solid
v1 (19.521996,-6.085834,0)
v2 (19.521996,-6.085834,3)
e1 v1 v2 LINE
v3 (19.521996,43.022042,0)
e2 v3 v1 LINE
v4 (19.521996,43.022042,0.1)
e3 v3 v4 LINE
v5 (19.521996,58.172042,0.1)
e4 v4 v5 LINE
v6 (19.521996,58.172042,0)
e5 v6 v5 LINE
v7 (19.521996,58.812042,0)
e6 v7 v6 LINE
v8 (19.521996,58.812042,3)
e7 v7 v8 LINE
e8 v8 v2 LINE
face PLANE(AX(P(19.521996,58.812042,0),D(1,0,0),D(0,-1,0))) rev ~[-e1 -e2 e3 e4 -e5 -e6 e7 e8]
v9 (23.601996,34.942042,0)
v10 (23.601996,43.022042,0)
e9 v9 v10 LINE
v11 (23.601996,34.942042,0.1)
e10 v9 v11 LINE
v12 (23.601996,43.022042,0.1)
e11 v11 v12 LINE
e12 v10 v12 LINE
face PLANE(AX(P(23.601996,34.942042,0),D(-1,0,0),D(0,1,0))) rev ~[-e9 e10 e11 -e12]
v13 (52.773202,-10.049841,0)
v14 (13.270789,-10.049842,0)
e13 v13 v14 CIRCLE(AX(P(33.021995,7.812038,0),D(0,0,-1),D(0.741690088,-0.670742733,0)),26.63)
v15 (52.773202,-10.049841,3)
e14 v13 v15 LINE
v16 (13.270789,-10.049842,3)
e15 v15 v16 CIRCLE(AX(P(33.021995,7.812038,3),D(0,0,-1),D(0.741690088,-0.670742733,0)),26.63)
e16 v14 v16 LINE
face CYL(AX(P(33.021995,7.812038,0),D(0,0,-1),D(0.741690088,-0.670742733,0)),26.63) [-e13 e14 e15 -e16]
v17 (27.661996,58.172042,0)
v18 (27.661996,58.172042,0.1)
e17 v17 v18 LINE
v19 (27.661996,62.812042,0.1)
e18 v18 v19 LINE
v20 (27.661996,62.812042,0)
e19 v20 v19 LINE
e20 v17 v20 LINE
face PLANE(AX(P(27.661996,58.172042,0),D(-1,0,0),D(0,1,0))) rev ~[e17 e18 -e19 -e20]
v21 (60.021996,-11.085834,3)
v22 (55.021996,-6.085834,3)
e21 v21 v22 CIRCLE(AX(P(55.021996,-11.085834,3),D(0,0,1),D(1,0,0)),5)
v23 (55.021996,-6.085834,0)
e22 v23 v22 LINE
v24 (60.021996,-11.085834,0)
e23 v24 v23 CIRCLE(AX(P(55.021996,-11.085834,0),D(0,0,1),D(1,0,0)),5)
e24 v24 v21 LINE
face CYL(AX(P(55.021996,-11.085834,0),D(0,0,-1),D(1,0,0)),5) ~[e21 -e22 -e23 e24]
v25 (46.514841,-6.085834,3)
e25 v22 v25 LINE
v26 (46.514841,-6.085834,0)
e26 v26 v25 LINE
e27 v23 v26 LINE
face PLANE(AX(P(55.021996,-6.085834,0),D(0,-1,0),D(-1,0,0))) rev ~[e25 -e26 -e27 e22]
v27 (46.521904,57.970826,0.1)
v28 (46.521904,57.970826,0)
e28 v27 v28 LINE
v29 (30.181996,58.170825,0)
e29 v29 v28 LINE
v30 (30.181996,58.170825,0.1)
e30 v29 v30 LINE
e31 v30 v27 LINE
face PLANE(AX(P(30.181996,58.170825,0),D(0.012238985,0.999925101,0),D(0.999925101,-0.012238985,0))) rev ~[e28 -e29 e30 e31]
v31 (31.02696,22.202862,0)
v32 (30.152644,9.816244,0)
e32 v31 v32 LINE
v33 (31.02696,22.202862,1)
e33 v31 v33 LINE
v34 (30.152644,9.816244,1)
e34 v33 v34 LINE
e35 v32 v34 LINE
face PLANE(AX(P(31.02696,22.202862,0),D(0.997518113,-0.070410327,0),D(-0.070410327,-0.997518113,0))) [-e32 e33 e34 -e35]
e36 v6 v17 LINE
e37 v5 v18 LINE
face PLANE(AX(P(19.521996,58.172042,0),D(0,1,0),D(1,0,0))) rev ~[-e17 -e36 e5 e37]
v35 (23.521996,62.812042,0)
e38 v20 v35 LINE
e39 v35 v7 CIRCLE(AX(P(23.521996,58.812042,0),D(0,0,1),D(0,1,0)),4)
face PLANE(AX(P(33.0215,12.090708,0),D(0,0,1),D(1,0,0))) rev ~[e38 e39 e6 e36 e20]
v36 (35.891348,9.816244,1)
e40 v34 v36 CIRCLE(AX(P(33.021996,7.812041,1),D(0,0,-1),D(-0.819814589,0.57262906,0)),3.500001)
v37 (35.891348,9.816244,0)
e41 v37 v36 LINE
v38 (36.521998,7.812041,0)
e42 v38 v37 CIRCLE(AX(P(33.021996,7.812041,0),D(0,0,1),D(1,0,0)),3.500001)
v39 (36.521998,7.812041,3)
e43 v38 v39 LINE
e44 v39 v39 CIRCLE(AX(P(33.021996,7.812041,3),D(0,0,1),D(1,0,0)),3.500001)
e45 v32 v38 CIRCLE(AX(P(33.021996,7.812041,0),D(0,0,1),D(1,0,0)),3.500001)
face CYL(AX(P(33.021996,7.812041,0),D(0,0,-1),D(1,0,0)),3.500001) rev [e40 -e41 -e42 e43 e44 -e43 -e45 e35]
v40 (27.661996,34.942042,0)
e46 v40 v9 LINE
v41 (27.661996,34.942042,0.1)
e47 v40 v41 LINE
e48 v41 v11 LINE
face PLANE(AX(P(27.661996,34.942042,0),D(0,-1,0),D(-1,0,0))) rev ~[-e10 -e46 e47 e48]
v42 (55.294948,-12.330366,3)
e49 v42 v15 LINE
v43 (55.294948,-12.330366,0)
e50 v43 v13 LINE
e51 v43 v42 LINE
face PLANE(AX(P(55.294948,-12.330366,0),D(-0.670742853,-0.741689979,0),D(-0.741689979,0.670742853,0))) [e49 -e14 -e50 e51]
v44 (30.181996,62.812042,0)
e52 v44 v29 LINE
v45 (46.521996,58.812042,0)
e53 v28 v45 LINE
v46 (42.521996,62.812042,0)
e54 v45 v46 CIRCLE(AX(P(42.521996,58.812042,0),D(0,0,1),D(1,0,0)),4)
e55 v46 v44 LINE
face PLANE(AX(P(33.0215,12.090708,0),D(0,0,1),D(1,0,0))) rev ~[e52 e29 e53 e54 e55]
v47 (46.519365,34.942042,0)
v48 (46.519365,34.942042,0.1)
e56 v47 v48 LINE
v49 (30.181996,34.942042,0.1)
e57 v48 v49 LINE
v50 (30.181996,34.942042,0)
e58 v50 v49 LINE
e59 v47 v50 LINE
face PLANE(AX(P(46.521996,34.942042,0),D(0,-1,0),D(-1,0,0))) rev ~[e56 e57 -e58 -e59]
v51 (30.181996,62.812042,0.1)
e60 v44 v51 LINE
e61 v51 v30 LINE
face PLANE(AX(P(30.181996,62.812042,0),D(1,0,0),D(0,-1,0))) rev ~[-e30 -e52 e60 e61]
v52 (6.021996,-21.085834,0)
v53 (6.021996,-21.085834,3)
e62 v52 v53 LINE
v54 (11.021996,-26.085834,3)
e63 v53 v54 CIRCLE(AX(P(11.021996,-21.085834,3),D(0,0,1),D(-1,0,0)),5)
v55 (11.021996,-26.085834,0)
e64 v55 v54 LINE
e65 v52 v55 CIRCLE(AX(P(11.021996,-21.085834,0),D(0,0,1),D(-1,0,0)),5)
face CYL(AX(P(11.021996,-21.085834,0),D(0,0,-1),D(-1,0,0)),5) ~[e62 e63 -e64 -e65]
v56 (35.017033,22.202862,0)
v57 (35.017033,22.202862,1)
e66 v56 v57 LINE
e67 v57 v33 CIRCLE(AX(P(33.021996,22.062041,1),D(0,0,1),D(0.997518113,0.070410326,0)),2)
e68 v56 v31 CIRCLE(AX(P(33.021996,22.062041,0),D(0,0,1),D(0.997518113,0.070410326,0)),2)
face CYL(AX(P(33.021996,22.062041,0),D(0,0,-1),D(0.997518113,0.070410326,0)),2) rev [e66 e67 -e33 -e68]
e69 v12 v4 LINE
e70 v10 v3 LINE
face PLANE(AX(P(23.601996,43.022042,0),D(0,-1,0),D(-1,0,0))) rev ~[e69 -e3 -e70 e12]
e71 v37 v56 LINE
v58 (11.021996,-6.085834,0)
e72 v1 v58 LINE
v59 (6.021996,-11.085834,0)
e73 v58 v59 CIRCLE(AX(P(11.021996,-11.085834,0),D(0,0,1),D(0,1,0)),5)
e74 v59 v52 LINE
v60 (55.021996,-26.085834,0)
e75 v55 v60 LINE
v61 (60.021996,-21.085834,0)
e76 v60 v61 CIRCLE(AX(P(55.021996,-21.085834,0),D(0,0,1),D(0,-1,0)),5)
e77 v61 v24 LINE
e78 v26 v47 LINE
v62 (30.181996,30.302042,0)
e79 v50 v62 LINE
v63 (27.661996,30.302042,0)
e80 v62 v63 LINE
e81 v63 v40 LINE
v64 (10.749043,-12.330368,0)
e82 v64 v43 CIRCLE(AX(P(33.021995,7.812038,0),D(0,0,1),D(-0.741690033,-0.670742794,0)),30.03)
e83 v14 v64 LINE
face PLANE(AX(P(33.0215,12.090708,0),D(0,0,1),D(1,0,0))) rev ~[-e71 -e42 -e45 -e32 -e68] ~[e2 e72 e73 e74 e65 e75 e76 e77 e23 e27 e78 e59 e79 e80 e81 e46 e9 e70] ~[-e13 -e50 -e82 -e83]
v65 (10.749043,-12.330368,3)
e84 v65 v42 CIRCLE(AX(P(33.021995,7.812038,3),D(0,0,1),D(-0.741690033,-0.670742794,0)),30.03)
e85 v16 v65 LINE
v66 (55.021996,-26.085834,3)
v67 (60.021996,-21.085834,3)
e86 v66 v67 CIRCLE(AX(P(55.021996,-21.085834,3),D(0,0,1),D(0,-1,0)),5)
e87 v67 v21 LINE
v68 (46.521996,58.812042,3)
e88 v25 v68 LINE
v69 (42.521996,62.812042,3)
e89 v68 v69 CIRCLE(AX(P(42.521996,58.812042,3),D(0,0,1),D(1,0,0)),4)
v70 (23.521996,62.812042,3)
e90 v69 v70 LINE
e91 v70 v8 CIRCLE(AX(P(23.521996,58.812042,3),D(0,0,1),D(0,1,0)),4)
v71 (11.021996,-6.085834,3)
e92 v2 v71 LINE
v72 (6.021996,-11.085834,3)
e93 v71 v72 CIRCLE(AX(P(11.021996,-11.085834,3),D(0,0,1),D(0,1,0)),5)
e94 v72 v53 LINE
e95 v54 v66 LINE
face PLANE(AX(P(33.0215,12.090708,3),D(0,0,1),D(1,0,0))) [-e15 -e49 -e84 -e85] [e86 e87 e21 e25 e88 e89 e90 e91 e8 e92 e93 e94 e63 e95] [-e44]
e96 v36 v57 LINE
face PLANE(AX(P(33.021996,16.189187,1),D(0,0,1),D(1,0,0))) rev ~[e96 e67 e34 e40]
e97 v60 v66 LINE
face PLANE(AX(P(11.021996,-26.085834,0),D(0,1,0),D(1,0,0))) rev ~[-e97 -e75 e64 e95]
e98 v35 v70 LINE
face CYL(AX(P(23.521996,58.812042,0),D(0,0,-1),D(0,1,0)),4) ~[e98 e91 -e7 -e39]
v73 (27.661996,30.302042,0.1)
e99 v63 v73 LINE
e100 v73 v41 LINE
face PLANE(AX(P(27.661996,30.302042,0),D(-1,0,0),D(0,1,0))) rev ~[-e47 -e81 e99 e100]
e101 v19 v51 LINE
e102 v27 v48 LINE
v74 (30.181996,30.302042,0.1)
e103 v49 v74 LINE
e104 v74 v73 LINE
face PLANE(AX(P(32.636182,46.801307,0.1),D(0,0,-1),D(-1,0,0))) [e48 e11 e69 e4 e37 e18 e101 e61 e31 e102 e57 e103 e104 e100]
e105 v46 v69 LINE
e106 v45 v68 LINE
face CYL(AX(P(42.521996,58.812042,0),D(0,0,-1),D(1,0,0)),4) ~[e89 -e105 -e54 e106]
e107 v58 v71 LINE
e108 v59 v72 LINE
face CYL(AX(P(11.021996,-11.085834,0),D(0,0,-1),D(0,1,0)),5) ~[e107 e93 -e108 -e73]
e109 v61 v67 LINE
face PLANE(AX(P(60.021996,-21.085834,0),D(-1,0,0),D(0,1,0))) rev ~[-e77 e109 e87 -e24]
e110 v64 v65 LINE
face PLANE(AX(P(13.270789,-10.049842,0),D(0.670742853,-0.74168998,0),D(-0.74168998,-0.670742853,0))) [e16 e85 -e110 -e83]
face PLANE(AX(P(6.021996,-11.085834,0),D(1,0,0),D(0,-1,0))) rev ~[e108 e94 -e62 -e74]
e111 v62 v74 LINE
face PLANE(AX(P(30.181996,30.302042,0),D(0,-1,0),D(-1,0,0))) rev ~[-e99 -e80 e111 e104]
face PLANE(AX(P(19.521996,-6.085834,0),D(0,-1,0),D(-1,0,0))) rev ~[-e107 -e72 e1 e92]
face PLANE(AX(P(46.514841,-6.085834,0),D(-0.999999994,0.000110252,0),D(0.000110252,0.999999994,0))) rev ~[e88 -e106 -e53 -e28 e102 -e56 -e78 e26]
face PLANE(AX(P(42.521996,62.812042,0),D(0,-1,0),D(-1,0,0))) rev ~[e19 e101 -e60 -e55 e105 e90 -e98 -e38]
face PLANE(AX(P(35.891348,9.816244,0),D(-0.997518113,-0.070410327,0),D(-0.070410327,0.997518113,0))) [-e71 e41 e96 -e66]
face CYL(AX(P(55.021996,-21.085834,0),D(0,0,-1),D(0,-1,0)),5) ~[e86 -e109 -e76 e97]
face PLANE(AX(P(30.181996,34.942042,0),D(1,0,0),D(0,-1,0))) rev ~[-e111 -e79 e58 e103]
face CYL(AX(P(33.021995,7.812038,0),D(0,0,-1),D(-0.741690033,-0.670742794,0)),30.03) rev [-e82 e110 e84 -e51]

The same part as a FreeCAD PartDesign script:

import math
import FreeCAD as App
import Part
import Sketcher

V = App.Vector


def add_polygon(sketch, points):
    """Adds a closed chain of lines whose ends are joined by coincident constraints."""
    first, n = sketch.GeometryCount, len(points)
    for a, b in zip(points, points[1:] + points[:1]):
        sketch.addGeometry(Part.LineSegment(App.Vector(*a, 0), App.Vector(*b, 0)), False)
    for i in range(n):
        sketch.addConstraint(Sketcher.Constraint("Coincident", first + i, 2, first + (i + 1) % n, 1))

doc = App.newDocument("Part")
body = doc.addObject("PartDesign::Body", "Body")

sketch1 = body.newObject("Sketcher::SketchObject", "Sketch")
sketch1.AttachmentSupport = (doc.getObject("XY_Plane"), [""])
sketch1.MapMode = "FlatFace"
sketch1.addGeometry(Part.LineSegment(V(19.5, -6.1, 0), V(11, -6.1, 0)), False)
sketch1.addGeometry(Part.ArcOfCircle(Part.Circle(V(11, -11.1, 0), V(0, 0, 1), 5), math.radians(90), math.radians(180)), False)
sketch1.addGeometry(Part.LineSegment(V(6, -11.1, 0), V(6, -21.1, 0)), False)
sketch1.addGeometry(Part.ArcOfCircle(Part.Circle(V(11, -21.1, 0), V(0, 0, 1), 5), math.radians(180), math.radians(270)), False)
sketch1.addGeometry(Part.LineSegment(V(11, -26.1, 0), V(55, -26.1, 0)), False)
sketch1.addGeometry(Part.ArcOfCircle(Part.Circle(V(55, -21.1, 0), V(0, 0, 1), 5), math.radians(-90), math.radians(0)), False)
sketch1.addGeometry(Part.LineSegment(V(60, -21.1, 0), V(60, -11.1, 0)), False)
sketch1.addGeometry(Part.ArcOfCircle(Part.Circle(V(55, -11.1, 0), V(0, 0, 1), 5), math.radians(0), math.radians(90)), False)
sketch1.addGeometry(Part.LineSegment(V(55, -6.1, 0), V(46.5, -6.1, 0)), False)
sketch1.addGeometry(Part.LineSegment(V(46.5, -6.1, 0), V(46.5, 58.8, 0)), False)
sketch1.addGeometry(Part.ArcOfCircle(Part.Circle(V(42.5, 58.8, 0), V(0, 0, 1), 4), math.radians(0), math.radians(90)), False)
sketch1.addGeometry(Part.LineSegment(V(42.5, 62.8, 0), V(23.5, 62.8, 0)), False)
sketch1.addGeometry(Part.ArcOfCircle(Part.Circle(V(23.5, 58.8, 0), V(0, 0, 1), 4), math.radians(90), math.radians(180)), False)
sketch1.addGeometry(Part.LineSegment(V(19.5, 58.8, 0), V(19.5, -6.1, 0)), False)
sketch1.addGeometry(Part.LineSegment(V(52.8, -10, 0), V(55.3, -12.3, 0)), False)
sketch1.addGeometry(Part.ArcOfCircle(Part.Circle(V(33, 7.8, 0), V(0, 0, 1), 30), math.radians(-138), math.radians(-42)), False)
sketch1.addGeometry(Part.LineSegment(V(10.7, -12.3, 0), V(13.3, -10, 0)), False)
sketch1.addGeometry(Part.ArcOfCircle(Part.Circle(V(33, 7.8, 0), V(0, 0, 1), 26.6), math.radians(-138), math.radians(-42)), False)
sketch1.addGeometry(Part.Circle(V(33, 7.8, 0), V(0, 0, 1), 3.5), False)
sketch1.addConstraint(Sketcher.Constraint("Tangent", 0, 2, 1, 1))
sketch1.addConstraint(Sketcher.Constraint("Tangent", 1, 2, 2, 1))
sketch1.addConstraint(Sketcher.Constraint("Tangent", 2, 2, 3, 1))
sketch1.addConstraint(Sketcher.Constraint("Tangent", 3, 2, 4, 1))
sketch1.addConstraint(Sketcher.Constraint("Tangent", 4, 2, 5, 1))
sketch1.addConstraint(Sketcher.Constraint("Tangent", 5, 2, 6, 1))
sketch1.addConstraint(Sketcher.Constraint("Tangent", 6, 2, 7, 1))
sketch1.addConstraint(Sketcher.Constraint("Tangent", 7, 2, 8, 1))
sketch1.addConstraint(Sketcher.Constraint("Coincident", 8, 2, 9, 1))
sketch1.addConstraint(Sketcher.Constraint("Coincident", 9, 2, 10, 1))
sketch1.addConstraint(Sketcher.Constraint("Tangent", 10, 2, 11, 1))
sketch1.addConstraint(Sketcher.Constraint("Tangent", 11, 2, 12, 1))
sketch1.addConstraint(Sketcher.Constraint("Tangent", 12, 2, 13, 1))
sketch1.addConstraint(Sketcher.Constraint("Coincident", 13, 2, 0, 1))
sketch1.addConstraint(Sketcher.Constraint("Coincident", 14, 2, 15, 2))
sketch1.addConstraint(Sketcher.Constraint("Coincident", 15, 1, 16, 1))
sketch1.addConstraint(Sketcher.Constraint("Coincident", 16, 2, 17, 1))
sketch1.addConstraint(Sketcher.Constraint("Coincident", 17, 2, 14, 1))
sketch1.addConstraint(Sketcher.Constraint("Horizontal", 0))
sketch1.addConstraint(Sketcher.Constraint("Vertical", 2))
sketch1.addConstraint(Sketcher.Constraint("Horizontal", 4))
sketch1.addConstraint(Sketcher.Constraint("Vertical", 6))
sketch1.addConstraint(Sketcher.Constraint("Horizontal", 8))
sketch1.addConstraint(Sketcher.Constraint("Horizontal", 11))
sketch1.addConstraint(Sketcher.Constraint("Vertical", 13))
sketch1.addConstraint(Sketcher.Constraint("Coincident", 17, 3, 15, 3))
sketch1.addConstraint(Sketcher.Constraint("Coincident", 18, 3, 15, 3))
sketch1.addConstraint(Sketcher.Constraint("Equal", 1, 3))
sketch1.addConstraint(Sketcher.Constraint("Equal", 3, 5))
sketch1.addConstraint(Sketcher.Constraint("Equal", 5, 7))
sketch1.addConstraint(Sketcher.Constraint("Equal", 10, 12))
sketch1.addConstraint(Sketcher.Constraint("Horizontal", 1, 3, 7, 3))
sketch1.addConstraint(Sketcher.Constraint("Horizontal", 12, 3, 9, 2))
sketch1.addConstraint(Sketcher.Constraint("Horizontal", 14, 2, 15, 1))
sketch1.addConstraint(Sketcher.Constraint("Horizontal", 16, 2, 17, 2))
sketch1.addConstraint(Sketcher.Constraint("Radius", 1, 5.0))
sketch1.addConstraint(Sketcher.Constraint("Radius", 10, 4.0))
sketch1.addConstraint(Sketcher.Constraint("DistanceX", 4, 1, 4, 2, 44.0))
sketch1.addConstraint(Sketcher.Constraint("DistanceX", 11, 2, 11, 1, 19.0))
sketch1.addConstraint(Sketcher.Constraint("DistanceY", 2, 2, 2, 1, 10.0))
sketch1.addConstraint(Sketcher.Constraint("Radius", 15, 30.03))
sketch1.addConstraint(Sketcher.Constraint("Radius", 17, 26.63))
sketch1.addConstraint(Sketcher.Constraint("DistanceX", 0, 2, 0, 1, 8.5))
sketch1.addConstraint(Sketcher.Constraint("DistanceX", 1, 3, 15, 3, 21.999999))
sketch1.addConstraint(Sketcher.Constraint("DistanceY", 18, 3, 9, 2, 51.0))
sketch1.addConstraint(Sketcher.Constraint("Diameter", 18, 7.000002))
sketch1.addConstraint(Sketcher.Constraint("DistanceX", 8, 2, 8, 1, 8.507155))
sketch1.addConstraint(Sketcher.Constraint("DistanceY", 13, 2, 13, 1, 64.897875))
sketch1.addConstraint(Sketcher.Constraint("DistanceY", -1, 1, 10, 3, 58.812042))
sketch1.addConstraint(Sketcher.Constraint("DistanceX", -1, 1, 8, 2, 46.514841))
sketch1.addConstraint(Sketcher.Constraint("DistanceX", -1, 1, 16, 2, 13.270789))
sketch1.addConstraint(Sketcher.Constraint("DistanceX", 7, 3, 14, 2, 0.272952))
pad1 = body.newObject("PartDesign::Pad", "Pad")
pad1.Profile = sketch1
pad1.Length = 3

sketch2 = body.newObject("Sketcher::SketchObject", "Sketch001")
sketch2.AttachmentSupport = (doc.getObject("XY_Plane"), [""])
sketch2.MapMode = "FlatFace"
sketch2.addGeometry(Part.LineSegment(V(35.9, 9.8, 0), V(35, 22.2, 0)), False)
sketch2.addGeometry(Part.ArcOfCircle(Part.Circle(V(33, 22.1, 0), V(0, 0, 1), 2), math.radians(4), math.radians(176)), False)
sketch2.addGeometry(Part.LineSegment(V(31, 22.2, 0), V(30.2, 9.8, 0)), False)
sketch2.addGeometry(Part.ArcOfCircle(Part.Circle(V(33, 7.8, 0), V(0, 0, 1), 3.5), math.radians(35), math.radians(145)), False)
sketch2.addConstraint(Sketcher.Constraint("Tangent", 0, 2, 1, 1))
sketch2.addConstraint(Sketcher.Constraint("Tangent", 1, 2, 2, 1))
sketch2.addConstraint(Sketcher.Constraint("Coincident", 2, 2, 3, 2))
sketch2.addConstraint(Sketcher.Constraint("Coincident", 3, 1, 0, 1))
sketch2.addConstraint(Sketcher.Constraint("Horizontal", 0, 2, 1, 2))
sketch2.addConstraint(Sketcher.Constraint("Horizontal", 2, 2, 3, 1))
sketch2.addConstraint(Sketcher.Constraint("Radius", 1, 2.0))
sketch2.addConstraint(Sketcher.Constraint("Radius", 3, 3.500001))
sketch2.addConstraint(Sketcher.Constraint("DistanceY", 3, 3, 1, 3, 14.25))
sketch2.addConstraint(Sketcher.Constraint("DistanceY", -1, 1, 1, 3, 22.062041))
sketch2.addConstraint(Sketcher.Constraint("DistanceX", -1, 1, 1, 2, 31.02696))
sketch2.addConstraint(Sketcher.Constraint("DistanceX", -1, 1, 3, 1, 35.891348))
pocket1 = body.newObject("PartDesign::Pocket", "Pocket")
pocket1.Profile = sketch2
pocket1.Length = 1
pocket1.Reversed = True

sketch3 = body.newObject("Sketcher::SketchObject", "Sketch002")
sketch3.AttachmentSupport = (doc.getObject("XY_Plane"), [""])
sketch3.MapMode = "FlatFace"
add_polygon(sketch3, [(19.5, 43), (23.6, 43), (23.6, 34.9), (27.7, 34.9), (27.7, 30.3), (30.2, 30.3), (30.2, 34.9), (46.5, 34.9), (46.5, 58), (30.2, 58.2), (30.2, 62.8), (27.7, 62.8), (27.7, 58.2), (19.5, 58.2)])
sketch3.addConstraint(Sketcher.Constraint("Horizontal", 0))
sketch3.addConstraint(Sketcher.Constraint("Vertical", 1))
sketch3.addConstraint(Sketcher.Constraint("Horizontal", 2))
sketch3.addConstraint(Sketcher.Constraint("Vertical", 3))
sketch3.addConstraint(Sketcher.Constraint("Horizontal", 4))
sketch3.addConstraint(Sketcher.Constraint("Vertical", 5))
sketch3.addConstraint(Sketcher.Constraint("Horizontal", 6))
sketch3.addConstraint(Sketcher.Constraint("Vertical", 7))
sketch3.addConstraint(Sketcher.Constraint("Vertical", 9))
sketch3.addConstraint(Sketcher.Constraint("Horizontal", 10))
sketch3.addConstraint(Sketcher.Constraint("Vertical", 11))
sketch3.addConstraint(Sketcher.Constraint("Horizontal", 12))
sketch3.addConstraint(Sketcher.Constraint("Vertical", 13))
sketch3.addConstraint(Sketcher.Constraint("Horizontal", 2, 2, 5, 2))
sketch3.addConstraint(Sketcher.Constraint("Vertical", 5, 2, 8, 2))
sketch3.addConstraint(Sketcher.Constraint("Vertical", 3, 2, 10, 2))
sketch3.addConstraint(Sketcher.Constraint("Equal", 5, 11))
sketch3.addConstraint(Sketcher.Constraint("DistanceX", 0, 1, 0, 2, 4.08))
sketch3.addConstraint(Sketcher.Constraint("DistanceX", 2, 1, 2, 2, 4.06))
sketch3.addConstraint(Sketcher.Constraint("DistanceX", 4, 1, 4, 2, 2.52))
sketch3.addConstraint(Sketcher.Constraint("DistanceX", 6, 1, 6, 2, 16.34))
sketch3.addConstraint(Sketcher.Constraint("DistanceY", 1, 2, 1, 1, 8.08))
sketch3.addConstraint(Sketcher.Constraint("DistanceY", 3, 2, 3, 1, 4.64))
sketch3.addConstraint(Sketcher.Constraint("DistanceY", 13, 2, 13, 1, 15.15))
sketch3.addConstraint(Sketcher.Constraint("DistanceY", 7, 2, 8, 2, 0.2))
sketch3.addConstraint(Sketcher.Constraint("DistanceY", 7, 1, 7, 2, 23.028784))
sketch3.addConstraint(Sketcher.Constraint("DistanceY", -1, 1, 0, 2, 43.022042))
sketch3.addConstraint(Sketcher.Constraint("DistanceX", -1, 1, 0, 2, 23.601996))
pocket2 = body.newObject("PartDesign::Pocket", "Pocket001")
pocket2.Profile = sketch3
pocket2.Length = 0.1
pocket2.Reversed = True

doc.recompute()
